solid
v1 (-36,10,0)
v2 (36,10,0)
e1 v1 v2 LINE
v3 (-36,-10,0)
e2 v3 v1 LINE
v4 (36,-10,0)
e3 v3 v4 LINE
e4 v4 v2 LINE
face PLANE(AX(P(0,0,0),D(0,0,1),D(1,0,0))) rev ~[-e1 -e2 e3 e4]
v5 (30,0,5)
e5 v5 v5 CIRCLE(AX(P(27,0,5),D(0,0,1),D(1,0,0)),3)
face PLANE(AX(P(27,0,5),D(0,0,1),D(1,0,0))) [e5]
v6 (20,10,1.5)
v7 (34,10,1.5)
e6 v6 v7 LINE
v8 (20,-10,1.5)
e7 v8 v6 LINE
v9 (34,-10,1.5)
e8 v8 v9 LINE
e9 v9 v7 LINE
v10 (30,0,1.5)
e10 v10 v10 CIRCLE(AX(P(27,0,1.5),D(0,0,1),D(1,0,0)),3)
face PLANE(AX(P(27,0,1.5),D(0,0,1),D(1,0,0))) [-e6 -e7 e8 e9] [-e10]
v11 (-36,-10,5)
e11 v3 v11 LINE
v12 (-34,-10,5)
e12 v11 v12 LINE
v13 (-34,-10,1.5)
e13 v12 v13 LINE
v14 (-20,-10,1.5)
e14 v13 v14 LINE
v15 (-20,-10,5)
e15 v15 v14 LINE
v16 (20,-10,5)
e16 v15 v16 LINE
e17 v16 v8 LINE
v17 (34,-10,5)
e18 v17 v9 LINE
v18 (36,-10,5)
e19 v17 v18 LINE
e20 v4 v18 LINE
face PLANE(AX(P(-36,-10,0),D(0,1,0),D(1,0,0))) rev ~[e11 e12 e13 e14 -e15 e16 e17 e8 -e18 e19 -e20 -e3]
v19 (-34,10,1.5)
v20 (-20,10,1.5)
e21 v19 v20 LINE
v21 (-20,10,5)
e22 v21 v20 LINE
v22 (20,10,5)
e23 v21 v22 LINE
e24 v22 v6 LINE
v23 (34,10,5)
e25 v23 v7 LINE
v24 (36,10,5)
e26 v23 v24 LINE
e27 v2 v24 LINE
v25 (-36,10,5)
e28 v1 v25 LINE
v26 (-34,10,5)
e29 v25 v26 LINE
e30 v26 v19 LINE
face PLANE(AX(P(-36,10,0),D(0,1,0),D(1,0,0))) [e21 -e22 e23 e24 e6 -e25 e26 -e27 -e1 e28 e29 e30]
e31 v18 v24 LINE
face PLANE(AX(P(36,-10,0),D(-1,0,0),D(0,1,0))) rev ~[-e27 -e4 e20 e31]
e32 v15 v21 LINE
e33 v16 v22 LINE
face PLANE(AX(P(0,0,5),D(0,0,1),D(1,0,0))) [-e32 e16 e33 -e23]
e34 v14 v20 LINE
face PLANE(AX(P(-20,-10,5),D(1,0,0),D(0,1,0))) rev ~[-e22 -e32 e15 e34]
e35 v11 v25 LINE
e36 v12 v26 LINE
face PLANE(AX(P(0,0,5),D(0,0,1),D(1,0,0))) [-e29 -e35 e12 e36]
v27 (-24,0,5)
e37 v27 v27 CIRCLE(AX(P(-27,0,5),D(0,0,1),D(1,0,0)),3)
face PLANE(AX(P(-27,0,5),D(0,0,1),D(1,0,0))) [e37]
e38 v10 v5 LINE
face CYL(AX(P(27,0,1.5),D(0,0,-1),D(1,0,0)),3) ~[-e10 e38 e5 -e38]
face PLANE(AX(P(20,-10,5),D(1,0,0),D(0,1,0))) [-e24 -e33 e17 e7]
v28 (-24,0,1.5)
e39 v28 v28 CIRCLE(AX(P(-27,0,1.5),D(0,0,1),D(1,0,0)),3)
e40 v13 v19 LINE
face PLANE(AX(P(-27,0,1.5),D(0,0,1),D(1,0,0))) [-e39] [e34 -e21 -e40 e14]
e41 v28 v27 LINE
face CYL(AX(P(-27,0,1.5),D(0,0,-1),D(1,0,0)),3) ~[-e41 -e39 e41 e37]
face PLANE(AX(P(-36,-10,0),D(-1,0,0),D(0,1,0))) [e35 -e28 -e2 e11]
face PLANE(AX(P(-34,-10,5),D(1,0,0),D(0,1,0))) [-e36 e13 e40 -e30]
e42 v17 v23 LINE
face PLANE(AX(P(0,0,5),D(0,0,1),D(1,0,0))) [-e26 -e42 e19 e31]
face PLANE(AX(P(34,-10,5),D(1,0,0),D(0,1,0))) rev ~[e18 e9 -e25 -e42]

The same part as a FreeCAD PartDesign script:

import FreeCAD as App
import Part
import Sketcher
from FreeCAD import Vector
Q = App.Units.Quantity


def add_polygon(sketch, points):
    """Adds a closed chain of lines whose ends are joined by coincident constraints."""
    first, n = sketch.GeometryCount, len(points)
    for a, b in zip(points, points[1:] + points[:1]):
        sketch.addGeometry(Part.LineSegment(App.Vector(*a, 0), App.Vector(*b, 0)), False)
    for i in range(n):
        sketch.addConstraint(Sketcher.Constraint("Coincident", first + i, 2, first + (i + 1) % n, 1))

doc = App.newDocument("Part")
body = doc.addObject("PartDesign::Body", "Body")

sketch1 = body.newObject("Sketcher::SketchObject", "Sketch")
sketch1.AttachmentSupport = (doc.getObject("XY_Plane"), [""])
sketch1.MapMode = "FlatFace"
add_polygon(sketch1, [(-36, 10), (-36, -10), (36, -10), (36, 10)])
sketch1.addConstraint([
    Sketcher.Constraint("Vertical", 0),
    Sketcher.Constraint("Horizontal", 1),
    Sketcher.Constraint("Vertical", 2),
    Sketcher.Constraint("Horizontal", 3),
    Sketcher.Constraint("Symmetric", 0, 2, 2, 2, -1, 1),
    Sketcher.Constraint("DistanceX", 1, 1, 1, 2, Q("72 mm")),
    Sketcher.Constraint("DistanceY", 0, 2, 0, 1, Q("20 mm")),
])
pad1 = body.newObject("PartDesign::Pad", "Pad")
pad1.Profile = sketch1
pad1.Length = 5

sketch2 = body.newObject("Sketcher::SketchObject", "Sketch001")
sketch2.AttachmentSupport = (doc.getObject("XY_Plane"), [""])
sketch2.MapMode = "FlatFace"
sketch2.AttachmentOffset = App.Placement(Vector(0, 0, 5), App.Rotation())
add_polygon(sketch2, [(20, 10), (20, -10), (34, -10), (34, 10)])
add_polygon(sketch2, [(-34, 10), (-34, -10), (-20, -10), (-20, 10)])
sketch2.addConstraint([
    Sketcher.Constraint("Vertical", 0),
    Sketcher.Constraint("Horizontal", 1),
    Sketcher.Constraint("Vertical", 2),
    Sketcher.Constraint("Horizontal", 3),
    Sketcher.Constraint("Vertical", 4),
    Sketcher.Constraint("Horizontal", 5),
    Sketcher.Constraint("Vertical", 6),
    Sketcher.Constraint("Horizontal", 7),
    Sketcher.Constraint("Symmetric", 2, 2, 4, 2, -1, 1),
    Sketcher.Constraint("Symmetric", 0, 2, 6, 2, -1, 1),
    Sketcher.Constraint("Horizontal", 1, 2, 4, 2),
    Sketcher.Constraint("DistanceX", 1, 1, 1, 2, Q("14 mm")),
    Sketcher.Constraint("DistanceY", 0, 2, 0, 1, Q("20 mm")),
    Sketcher.Constraint("DistanceX", -1, 1, 0, 2, Q("20 mm")),
])
pocket1 = body.newObject("PartDesign::Pocket", "Pocket")
pocket1.Profile = sketch2
pocket1.Length = 3.5

sketch3 = body.newObject("Sketcher::SketchObject", "Sketch002")
sketch3.AttachmentSupport = (doc.getObject("XY_Plane"), [""])
sketch3.MapMode = "FlatFace"
sketch3.AttachmentOffset = App.Placement(Vector(0, 0, 1.5), App.Rotation())
sketch3.addGeometry([
    Part.Circle(Vector(-27, 0, 0), Vector(0, 0, 1), 3),
    Part.Circle(Vector(27, 0, 0), Vector(0, 0, 1), 3),
], False)
sketch3.addConstraint([
    Sketcher.Constraint("Equal", 0, 1),
    Sketcher.Constraint("Symmetric", 0, 3, 1, 3, -1, 1),
    Sketcher.Constraint("PointOnObject", 0, 3, -1),
    Sketcher.Constraint("Diameter", 0, Q("6 mm")),
    Sketcher.Constraint("DistanceX", 0, 3, -1, 1, Q("27 mm")),
])
pad2 = body.newObject("PartDesign::Pad", "Pad001")
pad2.Profile = sketch3
pad2.Length = 3.5

doc.recompute()
